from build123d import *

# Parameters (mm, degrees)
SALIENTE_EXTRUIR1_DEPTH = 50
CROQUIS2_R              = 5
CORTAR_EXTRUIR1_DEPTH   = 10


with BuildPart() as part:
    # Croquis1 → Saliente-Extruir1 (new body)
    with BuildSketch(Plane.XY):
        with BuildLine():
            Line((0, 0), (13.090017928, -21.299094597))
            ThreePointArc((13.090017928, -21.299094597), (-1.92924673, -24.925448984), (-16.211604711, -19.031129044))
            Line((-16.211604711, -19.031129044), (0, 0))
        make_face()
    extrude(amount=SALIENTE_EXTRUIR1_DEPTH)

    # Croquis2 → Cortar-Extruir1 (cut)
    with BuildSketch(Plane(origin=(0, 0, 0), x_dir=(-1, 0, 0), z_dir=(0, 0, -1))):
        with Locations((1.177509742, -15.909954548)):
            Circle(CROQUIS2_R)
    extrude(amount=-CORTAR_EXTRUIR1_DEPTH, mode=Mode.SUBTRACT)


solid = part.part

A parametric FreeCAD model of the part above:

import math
import FreeCAD as App
import Part
import Sketcher

V = App.Vector
Q = App.Units.Quantity

doc = App.newDocument("Part")
body = doc.addObject("PartDesign::Body", "Body")

# Sketch on XY plane
sketch1 = body.newObject("Sketcher::SketchObject", "Sketch")
sketch1.AttachmentSupport = (doc.getObject("XY_Plane"), [""])
sketch1.MapMode = "FlatFace"
sketch1.addGeometry([
    Part.LineSegment(V(13.090018, -21.299095, 0), V(0, 0, 0)),
    Part.LineSegment(V(0, 0, 0), V(-16.211605, -19.031129, 0)),
    Part.ArcOfCircle(Part.Circle(V(0, 0, 0), V(0, 0, 1), 25), math.radians(-130.425908), math.radians(-58.425908)),
], False)
sketch1.addConstraint([
    Sketcher.Constraint("Coincident", 0, 2, 1, 1),
    Sketcher.Constraint("Coincident", 1, 2, 2, 1),
    Sketcher.Constraint("Coincident", 2, 2, 0, 1),
    Sketcher.Constraint("Coincident", 2, 3, -1, 1),
    Sketcher.Constraint("Coincident", 0, 2, -1, 1),
    Sketcher.Constraint("Radius", 2, Q("25 mm")),
    Sketcher.Constraint("DistanceY", 1, 2, -1, 1, Q("19.031129 mm")),
    Sketcher.Constraint("DistanceX", -1, 1, 2, 2, Q("13.090018 mm")),
])
pad1 = body.newObject("PartDesign::Pad", "Pad")
pad1.Profile = sketch1
pad1.Length = 50

# Sketch on XY plane
sketch2 = body.newObject("Sketcher::SketchObject", "Sketch001")
sketch2.AttachmentSupport = (doc.getObject("XY_Plane"), [""])
sketch2.MapMode = "FlatFace"
sketch2.addGeometry(Part.Circle(V(-1.17751, -15.909955, 0), V(0, 0, 1), 5), False)
sketch2.addConstraint([
    Sketcher.Constraint("Diameter", 0, Q("10 mm")),
    Sketcher.Constraint("DistanceX", 0, 3, -1, 1, Q("1.17751 mm")),
    Sketcher.Constraint("DistanceY", 0, 3, -1, 1, Q("15.909955 mm")),
])
pocket1 = body.newObject("PartDesign::Pocket", "Pocket")
pocket1.Profile = sketch2
pocket1.Length = 10
pocket1.Reversed = True

doc.recompute()
